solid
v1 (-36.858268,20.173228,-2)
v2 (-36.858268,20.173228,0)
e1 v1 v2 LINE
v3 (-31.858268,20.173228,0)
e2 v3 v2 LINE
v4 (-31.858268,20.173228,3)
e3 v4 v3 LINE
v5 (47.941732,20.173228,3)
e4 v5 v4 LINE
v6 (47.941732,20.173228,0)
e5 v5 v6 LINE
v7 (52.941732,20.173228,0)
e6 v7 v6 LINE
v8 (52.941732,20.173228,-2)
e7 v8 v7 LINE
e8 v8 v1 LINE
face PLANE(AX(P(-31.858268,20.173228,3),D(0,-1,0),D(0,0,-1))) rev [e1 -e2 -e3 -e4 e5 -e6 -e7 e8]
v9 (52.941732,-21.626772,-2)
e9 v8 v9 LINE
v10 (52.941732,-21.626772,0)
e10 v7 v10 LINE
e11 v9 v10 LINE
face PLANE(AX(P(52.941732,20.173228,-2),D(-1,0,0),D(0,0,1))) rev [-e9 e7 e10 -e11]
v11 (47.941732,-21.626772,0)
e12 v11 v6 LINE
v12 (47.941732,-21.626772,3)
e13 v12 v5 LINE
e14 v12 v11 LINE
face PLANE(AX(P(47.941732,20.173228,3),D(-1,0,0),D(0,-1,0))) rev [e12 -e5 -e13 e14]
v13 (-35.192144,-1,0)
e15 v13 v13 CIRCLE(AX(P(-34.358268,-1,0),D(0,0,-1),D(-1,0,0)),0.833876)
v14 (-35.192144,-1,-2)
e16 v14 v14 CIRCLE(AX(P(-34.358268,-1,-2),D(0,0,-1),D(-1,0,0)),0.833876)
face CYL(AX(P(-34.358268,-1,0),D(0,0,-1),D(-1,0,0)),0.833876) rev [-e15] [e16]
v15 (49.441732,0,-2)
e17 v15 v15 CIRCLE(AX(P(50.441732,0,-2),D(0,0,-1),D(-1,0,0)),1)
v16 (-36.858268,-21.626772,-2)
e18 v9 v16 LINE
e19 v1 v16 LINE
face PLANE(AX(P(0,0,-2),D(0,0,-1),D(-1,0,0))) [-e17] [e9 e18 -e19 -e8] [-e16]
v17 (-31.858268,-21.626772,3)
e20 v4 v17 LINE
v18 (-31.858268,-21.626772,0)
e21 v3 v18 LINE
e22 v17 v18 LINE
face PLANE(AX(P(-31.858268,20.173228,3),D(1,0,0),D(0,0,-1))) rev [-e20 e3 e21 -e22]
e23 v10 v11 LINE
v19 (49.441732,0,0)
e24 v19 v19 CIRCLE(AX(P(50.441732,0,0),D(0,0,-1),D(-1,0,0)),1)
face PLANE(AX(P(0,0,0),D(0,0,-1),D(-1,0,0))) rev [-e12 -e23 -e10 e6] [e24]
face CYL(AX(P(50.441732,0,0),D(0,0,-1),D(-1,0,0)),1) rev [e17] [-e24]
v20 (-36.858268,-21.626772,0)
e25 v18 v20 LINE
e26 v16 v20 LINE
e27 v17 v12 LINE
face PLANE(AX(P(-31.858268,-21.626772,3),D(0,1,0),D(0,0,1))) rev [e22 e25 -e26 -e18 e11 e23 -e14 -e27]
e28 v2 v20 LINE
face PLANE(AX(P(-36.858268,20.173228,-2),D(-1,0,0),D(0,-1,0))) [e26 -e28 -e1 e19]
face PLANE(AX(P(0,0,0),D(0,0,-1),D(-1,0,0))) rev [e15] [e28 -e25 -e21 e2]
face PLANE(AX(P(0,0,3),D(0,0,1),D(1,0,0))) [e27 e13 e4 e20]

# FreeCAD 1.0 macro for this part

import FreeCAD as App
import Part
import Sketcher
from FreeCAD import Vector

doc = App.newDocument("Part")
params = doc.addObject("Spreadsheet::Sheet", "Params")
for row, (alias, value) in enumerate([
    ("sketch1_width", "79.8 mm"),
    ("sketch1_height", "41.8 mm"),
    ("pad1_length", "3 mm"),
    ("sketch2_width", "89.8 mm"),
    ("sketch2_height", "41.8 mm"),
    ("pad2_length", "2 mm"),
    ("sketch3_diameter", "2 mm"),
    ("pocket1_length", "2 mm"),
], start=1):
    params.set(f"A{row}", alias)
    params.set(f"B{row}", "=" + value)
    params.setAlias(f"B{row}", alias)

body = doc.addObject("PartDesign::Body", "Body")

# Sketch on XY plane
sketch1 = body.newObject("Sketcher::SketchObject", "Sketch")
sketch1.AttachmentSupport = (doc.getObject("XY_Plane"), [""])
sketch1.MapMode = "FlatFace"
sketch1.addGeometry([
    Part.LineSegment(Vector(-32, 20, 0), Vector(-32, -22, 0)),
    Part.LineSegment(Vector(-32, -22, 0), Vector(48, -22, 0)),
    Part.LineSegment(Vector(48, -22, 0), Vector(48, 20, 0)),
    Part.LineSegment(Vector(48, 20, 0), Vector(-32, 20, 0)),
], False)
sketch1.addConstraint([
    Sketcher.Constraint("Coincident", 0, 2, 1, 1),
    Sketcher.Constraint("Coincident", 1, 2, 2, 1),
    Sketcher.Constraint("Coincident", 2, 2, 3, 1),
    Sketcher.Constraint("Coincident", 3, 2, 0, 1),
    Sketcher.Constraint("Vertical", 0),
    Sketcher.Constraint("Horizontal", 1),
    Sketcher.Constraint("Vertical", 2),
    Sketcher.Constraint("Horizontal", 3),
    Sketcher.Constraint("DistanceX", 1, 1, 1, 2, 79.8),
    Sketcher.Constraint("DistanceY", 0, 2, 0, 1, 41.8),
    Sketcher.Constraint("DistanceY", 0, 2, -1, 1, 21.626772),
    Sketcher.Constraint("DistanceX", 0, 2, -1, 1, 31.858268),
])
sketch1.setExpression("Constraints[8]", "Params.sketch1_width")
sketch1.setExpression("Constraints[9]", "Params.sketch1_height")
pad1 = body.newObject("PartDesign::Pad", "Pad")
pad1.Profile = sketch1
pad1.setExpression("Length", "Params.pad1_length")

# Sketch on XY plane
sketch2 = body.newObject("Sketcher::SketchObject", "Sketch001")
sketch2.AttachmentSupport = (doc.getObject("XY_Plane"), [""])
sketch2.MapMode = "FlatFace"
sketch2.addGeometry([
    Part.LineSegment(Vector(53, 20, 0), Vector(53, -22, 0)),
    Part.LineSegment(Vector(53, -22, 0), Vector(-37, -22, 0)),
    Part.LineSegment(Vector(-37, -22, 0), Vector(-37, 20, 0)),
    Part.LineSegment(Vector(-37, 20, 0), Vector(53, 20, 0)),
], False)
sketch2.addConstraint([
    Sketcher.Constraint("Coincident", 0, 2, 1, 1),
    Sketcher.Constraint("Coincident", 1, 2, 2, 1),
    Sketcher.Constraint("Coincident", 2, 2, 3, 1),
    Sketcher.Constraint("Coincident", 3, 2, 0, 1),
    Sketcher.Constraint("Vertical", 0),
    Sketcher.Constraint("Horizontal", 1),
    Sketcher.Constraint("Vertical", 2),
    Sketcher.Constraint("Horizontal", 3),
    Sketcher.Constraint("DistanceX", 1, 2, 1, 1, 89.8),
    Sketcher.Constraint("DistanceY", 0, 2, 0, 1, 41.8),
    Sketcher.Constraint("DistanceY", 0, 2, -1, 1, 21.626772),
    Sketcher.Constraint("DistanceX", -1, 1, 0, 2, 52.941732),
])
sketch2.setExpression("Constraints[8]", "Params.sketch2_width")
sketch2.setExpression("Constraints[9]", "Params.sketch2_height")
pad2 = body.newObject("PartDesign::Pad", "Pad001")
pad2.Profile = sketch2
pad2.setExpression("Length", "Params.pad2_length")
pad2.Reversed = True

# Sketch on XY plane
sketch3 = body.newObject("Sketcher::SketchObject", "Sketch002")
sketch3.AttachmentSupport = (doc.getObject("XY_Plane"), [""])
sketch3.MapMode = "FlatFace"
sketch3.AttachmentOffset = App.Placement(Vector(0, 0, -2), App.Rotation())
sketch3.addGeometry([
    Part.Circle(Vector(50.4, 0, 0), Vector(0, 0, 1), 1),
    Part.Circle(Vector(-34.4, -1, 0), Vector(0, 0, 1), 0.8),
], False)
sketch3.addConstraint([
    Sketcher.Constraint("PointOnObject", 0, 3, -1),
    Sketcher.Constraint("Diameter", 0, 2.0),
    Sketcher.Constraint("DistanceY", 1, 3, -1, 1, 1.0),
    Sketcher.Constraint("DistanceX", 1, 3, 0, 3, 84.8),
    Sketcher.Constraint("Diameter", 1, 1.667752),
    Sketcher.Constraint("DistanceX", -1, 1, 0, 3, 50.441732),
])
sketch3.setExpression("Constraints[1]", "Params.sketch3_diameter")
pocket1 = body.newObject("PartDesign::Pocket", "Pocket")
pocket1.Profile = sketch3
pocket1.setExpression("Length", "Params.pocket1_length")
pocket1.Reversed = True

doc.recompute()
